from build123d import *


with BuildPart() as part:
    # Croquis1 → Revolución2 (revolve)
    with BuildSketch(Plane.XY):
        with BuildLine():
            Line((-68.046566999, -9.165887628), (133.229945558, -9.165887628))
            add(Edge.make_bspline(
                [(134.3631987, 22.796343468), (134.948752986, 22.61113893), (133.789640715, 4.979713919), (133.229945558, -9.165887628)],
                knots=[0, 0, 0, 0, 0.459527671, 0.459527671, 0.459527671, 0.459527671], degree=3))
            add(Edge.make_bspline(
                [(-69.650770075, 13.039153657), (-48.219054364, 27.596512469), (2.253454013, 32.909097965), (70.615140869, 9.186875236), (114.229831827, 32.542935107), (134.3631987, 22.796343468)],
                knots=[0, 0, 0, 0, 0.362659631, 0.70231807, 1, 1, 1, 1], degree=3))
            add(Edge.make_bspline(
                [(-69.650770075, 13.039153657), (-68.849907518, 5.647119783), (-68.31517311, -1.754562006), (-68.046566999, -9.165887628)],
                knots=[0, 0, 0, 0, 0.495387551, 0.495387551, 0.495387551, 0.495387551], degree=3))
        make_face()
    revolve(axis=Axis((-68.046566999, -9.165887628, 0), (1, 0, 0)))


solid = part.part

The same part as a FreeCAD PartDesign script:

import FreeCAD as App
import Part
import Sketcher

doc = App.newDocument("Part")
params = doc.addObject("Spreadsheet::Sheet", "Params")
for row, (alias, value) in enumerate([
    ("revolution_angle", "360 deg"),
], start=1):
    params.set(f"A{row}", alias)
    params.set(f"B{row}", "=" + value)
    params.setAlias(f"B{row}", alias)

body = doc.addObject("PartDesign::Body", "Body")

# Sketch on XY plane
sketch1 = doc.addObject("Sketcher::SketchObject", "Sketch")
body.addObject(sketch1)
sketch1.AttachmentSupport = (doc.XY_Plane, [""])
sketch1.MapMode = "FlatFace"
sketch1.addGeometry([
    Part.LineSegment(App.Vector(-68.046567, -9.165888, 0), App.Vector(133.229946, -9.165888, 0)),
    Part.BSplineCurve([App.Vector(134.363199, 22.796343, 0), App.Vector(134.948753, 22.611139, 0), App.Vector(133.789641, 4.979714, 0), App.Vector(133.229946, -9.165888, 0)], [4, 4], [0, 0.459527671], False, 3, [1, 1, 1, 1], False),
    Part.BSplineCurve([App.Vector(-69.65077, 13.039154, 0), App.Vector(-48.219054, 27.596512, 0), App.Vector(2.253454, 32.909098, 0), App.Vector(70.615141, 9.186875, 0), App.Vector(114.229832, 32.542935, 0), App.Vector(134.363199, 22.796343, 0)], [4, 1, 1, 4], [0, 0.362659631, 0.70231807, 1], False, 3, [1, 1, 1, 1, 1, 1], False),
    Part.BSplineCurve([App.Vector(-69.65077, 13.039154, 0), App.Vector(-68.849908, 5.64712, 0), App.Vector(-68.315173, -1.754562, 0), App.Vector(-68.046567, -9.165888, 0)], [4, 4], [0, 0.495387551], False, 3, [1, 1, 1, 1], False),
], False)
sketch1.addGeometry(Part.LineSegment(App.Vector(-69.65077, -9.165888, 0), App.Vector(134.363199, -9.165888, 0)), True)  # axis
sketch1.addConstraint([
    Sketcher.Constraint("Block", 1),
    Sketcher.Constraint("Block", 2),
    Sketcher.Constraint("Block", 3),
    Sketcher.Constraint("Coincident", 0, 2, 1, 2),
    Sketcher.Constraint("Coincident", 3, 2, 0, 1),
    Sketcher.Constraint("Horizontal", 4),
    Sketcher.Constraint("Horizontal", 0, 2, 4, 1),
    Sketcher.Constraint("DistanceX", 4, 1, 4, 2, 204.013969),
    Sketcher.Constraint("DistanceX", -1, 1, 4, 2, 134.363199),
])
revolution = doc.addObject("PartDesign::Revolution", "Revolution")
body.addObject(revolution)
revolution.Profile = sketch1
revolution.ReferenceAxis = (sketch1, ["Axis0"])
revolution.setExpression("Angle", "Params.revolution_angle")

doc.recompute()
